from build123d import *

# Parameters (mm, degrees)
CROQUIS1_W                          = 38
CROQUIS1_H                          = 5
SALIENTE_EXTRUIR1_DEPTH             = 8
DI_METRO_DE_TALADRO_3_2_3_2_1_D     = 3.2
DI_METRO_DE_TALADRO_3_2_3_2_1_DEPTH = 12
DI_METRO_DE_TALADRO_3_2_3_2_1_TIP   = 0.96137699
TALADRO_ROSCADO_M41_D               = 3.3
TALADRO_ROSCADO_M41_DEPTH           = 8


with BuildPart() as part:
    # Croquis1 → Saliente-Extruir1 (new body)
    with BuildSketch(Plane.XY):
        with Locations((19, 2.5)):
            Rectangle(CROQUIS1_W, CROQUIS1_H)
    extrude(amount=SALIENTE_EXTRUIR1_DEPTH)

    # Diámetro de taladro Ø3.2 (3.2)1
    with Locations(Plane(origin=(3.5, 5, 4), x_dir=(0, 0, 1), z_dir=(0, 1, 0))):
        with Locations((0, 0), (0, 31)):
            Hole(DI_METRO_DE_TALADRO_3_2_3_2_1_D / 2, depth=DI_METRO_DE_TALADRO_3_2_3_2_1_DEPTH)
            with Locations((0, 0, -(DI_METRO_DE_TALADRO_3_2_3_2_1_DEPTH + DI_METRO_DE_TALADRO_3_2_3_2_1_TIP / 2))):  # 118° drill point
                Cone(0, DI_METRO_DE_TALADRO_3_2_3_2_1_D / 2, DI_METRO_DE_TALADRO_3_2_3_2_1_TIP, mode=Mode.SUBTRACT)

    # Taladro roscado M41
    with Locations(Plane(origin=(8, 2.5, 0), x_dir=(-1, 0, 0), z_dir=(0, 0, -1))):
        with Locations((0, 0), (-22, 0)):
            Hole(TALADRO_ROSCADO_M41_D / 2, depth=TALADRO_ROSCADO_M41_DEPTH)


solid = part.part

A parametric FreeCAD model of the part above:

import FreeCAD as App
import Part
import Sketcher
from FreeCAD import Vector
Q = App.Units.Quantity


def add_polygon(sketch, points):
    """Adds a closed chain of lines whose ends are joined by coincident constraints."""
    first, n = sketch.GeometryCount, len(points)
    for a, b in zip(points, points[1:] + points[:1]):
        sketch.addGeometry(Part.LineSegment(App.Vector(*a, 0), App.Vector(*b, 0)), False)
    for i in range(n):
        sketch.addConstraint(Sketcher.Constraint("Coincident", first + i, 2, first + (i + 1) % n, 1))

doc = App.newDocument("Part")
body = doc.addObject("PartDesign::Body", "Body")

# Sketch on XY plane
sketch1 = body.newObject("Sketcher::SketchObject", "Sketch")
sketch1.AttachmentSupport = (doc.getObject("XY_Plane"), [""])
sketch1.MapMode = "FlatFace"
add_polygon(sketch1, [(0, 5), (0, 0), (38, 0), (38, 5)])  # lines 0-3
sketch1.addConstraint([
    Sketcher.Constraint("Vertical", 0),
    Sketcher.Constraint("Horizontal", 1),
    Sketcher.Constraint("Vertical", 2),
    Sketcher.Constraint("Horizontal", 3),
    Sketcher.Constraint("Coincident", 0, 2, -1, 1),
    Sketcher.Constraint("DistanceX", 1, 1, 1, 2, Q("38 mm")),
    Sketcher.Constraint("DistanceY", 0, 2, 0, 1, Q("5 mm")),
])
pad1 = body.newObject("PartDesign::Pad", "Pad")
pad1.Profile = sketch1
pad1.Length = 8

# Sketch on XZ plane
sketch2 = body.newObject("Sketcher::SketchObject", "Sketch001")
sketch2.AttachmentSupport = (doc.getObject("XZ_Plane"), [""])
sketch2.MapMode = "FlatFace"
sketch2.AttachmentOffset = App.Placement(Vector(0, 0, -5), App.Rotation())
sketch2.addGeometry([
    Part.Circle(Vector(3.5, 4, 0), Vector(0, 0, 1), 1.6),
    Part.Circle(Vector(34.5, 4, 0), Vector(0, 0, 1), 1.6),
], False)
sketch2.addConstraint([
    Sketcher.Constraint("Equal", 0, 1),
    Sketcher.Constraint("Horizontal", 0, 3, 1, 3),
    Sketcher.Constraint("Diameter", 0, Q("3.2 mm")),
    Sketcher.Constraint("DistanceY", -1, 1, 0, 3, Q("4 mm")),
    Sketcher.Constraint("DistanceX", 0, 3, 1, 3, Q("31 mm")),
    Sketcher.Constraint("DistanceX", -1, 1, 0, 3, Q("3.5 mm")),
])
doc.recompute()
hole = body.newObject("PartDesign::Hole", "Hole")
hole.Profile = sketch2
hole.ThreadType = "None"
hole.Diameter = 3.2
hole.DepthType = "Dimension"
hole.Depth = 12
hole.DrillPoint = "Angled"
hole.DrillPointAngle = 118
hole.Reversed = True

# Sketch on XY plane
sketch3 = body.newObject("Sketcher::SketchObject", "Sketch002")
sketch3.AttachmentSupport = (doc.getObject("XY_Plane"), [""])
sketch3.MapMode = "FlatFace"
sketch3.addGeometry([
    Part.Circle(Vector(8, 2.5, 0), Vector(0, 0, 1), 1.6),
    Part.Circle(Vector(30, 2.5, 0), Vector(0, 0, 1), 1.6),
], False)
sketch3.addConstraint([
    Sketcher.Constraint("Equal", 0, 1),
    Sketcher.Constraint("Horizontal", 0, 3, 1, 3),
    Sketcher.Constraint("Diameter", 0, Q("3.3 mm")),
    Sketcher.Constraint("DistanceX", -1, 1, 0, 3, Q("8 mm")),
    Sketcher.Constraint("DistanceX", -1, 1, 1, 3, Q("30 mm")),
    Sketcher.Constraint("DistanceY", -1, 1, 0, 3, Q("2.5 mm")),
])
doc.recompute()
hole2 = body.newObject("PartDesign::Hole", "Hole001")
hole2.Profile = sketch3
hole2.ThreadType = "None"
hole2.Diameter = 3.3
hole2.DepthType = "Dimension"
hole2.Depth = 8
hole2.DrillPoint = "Flat"
hole2.Reversed = True

doc.recompute()
